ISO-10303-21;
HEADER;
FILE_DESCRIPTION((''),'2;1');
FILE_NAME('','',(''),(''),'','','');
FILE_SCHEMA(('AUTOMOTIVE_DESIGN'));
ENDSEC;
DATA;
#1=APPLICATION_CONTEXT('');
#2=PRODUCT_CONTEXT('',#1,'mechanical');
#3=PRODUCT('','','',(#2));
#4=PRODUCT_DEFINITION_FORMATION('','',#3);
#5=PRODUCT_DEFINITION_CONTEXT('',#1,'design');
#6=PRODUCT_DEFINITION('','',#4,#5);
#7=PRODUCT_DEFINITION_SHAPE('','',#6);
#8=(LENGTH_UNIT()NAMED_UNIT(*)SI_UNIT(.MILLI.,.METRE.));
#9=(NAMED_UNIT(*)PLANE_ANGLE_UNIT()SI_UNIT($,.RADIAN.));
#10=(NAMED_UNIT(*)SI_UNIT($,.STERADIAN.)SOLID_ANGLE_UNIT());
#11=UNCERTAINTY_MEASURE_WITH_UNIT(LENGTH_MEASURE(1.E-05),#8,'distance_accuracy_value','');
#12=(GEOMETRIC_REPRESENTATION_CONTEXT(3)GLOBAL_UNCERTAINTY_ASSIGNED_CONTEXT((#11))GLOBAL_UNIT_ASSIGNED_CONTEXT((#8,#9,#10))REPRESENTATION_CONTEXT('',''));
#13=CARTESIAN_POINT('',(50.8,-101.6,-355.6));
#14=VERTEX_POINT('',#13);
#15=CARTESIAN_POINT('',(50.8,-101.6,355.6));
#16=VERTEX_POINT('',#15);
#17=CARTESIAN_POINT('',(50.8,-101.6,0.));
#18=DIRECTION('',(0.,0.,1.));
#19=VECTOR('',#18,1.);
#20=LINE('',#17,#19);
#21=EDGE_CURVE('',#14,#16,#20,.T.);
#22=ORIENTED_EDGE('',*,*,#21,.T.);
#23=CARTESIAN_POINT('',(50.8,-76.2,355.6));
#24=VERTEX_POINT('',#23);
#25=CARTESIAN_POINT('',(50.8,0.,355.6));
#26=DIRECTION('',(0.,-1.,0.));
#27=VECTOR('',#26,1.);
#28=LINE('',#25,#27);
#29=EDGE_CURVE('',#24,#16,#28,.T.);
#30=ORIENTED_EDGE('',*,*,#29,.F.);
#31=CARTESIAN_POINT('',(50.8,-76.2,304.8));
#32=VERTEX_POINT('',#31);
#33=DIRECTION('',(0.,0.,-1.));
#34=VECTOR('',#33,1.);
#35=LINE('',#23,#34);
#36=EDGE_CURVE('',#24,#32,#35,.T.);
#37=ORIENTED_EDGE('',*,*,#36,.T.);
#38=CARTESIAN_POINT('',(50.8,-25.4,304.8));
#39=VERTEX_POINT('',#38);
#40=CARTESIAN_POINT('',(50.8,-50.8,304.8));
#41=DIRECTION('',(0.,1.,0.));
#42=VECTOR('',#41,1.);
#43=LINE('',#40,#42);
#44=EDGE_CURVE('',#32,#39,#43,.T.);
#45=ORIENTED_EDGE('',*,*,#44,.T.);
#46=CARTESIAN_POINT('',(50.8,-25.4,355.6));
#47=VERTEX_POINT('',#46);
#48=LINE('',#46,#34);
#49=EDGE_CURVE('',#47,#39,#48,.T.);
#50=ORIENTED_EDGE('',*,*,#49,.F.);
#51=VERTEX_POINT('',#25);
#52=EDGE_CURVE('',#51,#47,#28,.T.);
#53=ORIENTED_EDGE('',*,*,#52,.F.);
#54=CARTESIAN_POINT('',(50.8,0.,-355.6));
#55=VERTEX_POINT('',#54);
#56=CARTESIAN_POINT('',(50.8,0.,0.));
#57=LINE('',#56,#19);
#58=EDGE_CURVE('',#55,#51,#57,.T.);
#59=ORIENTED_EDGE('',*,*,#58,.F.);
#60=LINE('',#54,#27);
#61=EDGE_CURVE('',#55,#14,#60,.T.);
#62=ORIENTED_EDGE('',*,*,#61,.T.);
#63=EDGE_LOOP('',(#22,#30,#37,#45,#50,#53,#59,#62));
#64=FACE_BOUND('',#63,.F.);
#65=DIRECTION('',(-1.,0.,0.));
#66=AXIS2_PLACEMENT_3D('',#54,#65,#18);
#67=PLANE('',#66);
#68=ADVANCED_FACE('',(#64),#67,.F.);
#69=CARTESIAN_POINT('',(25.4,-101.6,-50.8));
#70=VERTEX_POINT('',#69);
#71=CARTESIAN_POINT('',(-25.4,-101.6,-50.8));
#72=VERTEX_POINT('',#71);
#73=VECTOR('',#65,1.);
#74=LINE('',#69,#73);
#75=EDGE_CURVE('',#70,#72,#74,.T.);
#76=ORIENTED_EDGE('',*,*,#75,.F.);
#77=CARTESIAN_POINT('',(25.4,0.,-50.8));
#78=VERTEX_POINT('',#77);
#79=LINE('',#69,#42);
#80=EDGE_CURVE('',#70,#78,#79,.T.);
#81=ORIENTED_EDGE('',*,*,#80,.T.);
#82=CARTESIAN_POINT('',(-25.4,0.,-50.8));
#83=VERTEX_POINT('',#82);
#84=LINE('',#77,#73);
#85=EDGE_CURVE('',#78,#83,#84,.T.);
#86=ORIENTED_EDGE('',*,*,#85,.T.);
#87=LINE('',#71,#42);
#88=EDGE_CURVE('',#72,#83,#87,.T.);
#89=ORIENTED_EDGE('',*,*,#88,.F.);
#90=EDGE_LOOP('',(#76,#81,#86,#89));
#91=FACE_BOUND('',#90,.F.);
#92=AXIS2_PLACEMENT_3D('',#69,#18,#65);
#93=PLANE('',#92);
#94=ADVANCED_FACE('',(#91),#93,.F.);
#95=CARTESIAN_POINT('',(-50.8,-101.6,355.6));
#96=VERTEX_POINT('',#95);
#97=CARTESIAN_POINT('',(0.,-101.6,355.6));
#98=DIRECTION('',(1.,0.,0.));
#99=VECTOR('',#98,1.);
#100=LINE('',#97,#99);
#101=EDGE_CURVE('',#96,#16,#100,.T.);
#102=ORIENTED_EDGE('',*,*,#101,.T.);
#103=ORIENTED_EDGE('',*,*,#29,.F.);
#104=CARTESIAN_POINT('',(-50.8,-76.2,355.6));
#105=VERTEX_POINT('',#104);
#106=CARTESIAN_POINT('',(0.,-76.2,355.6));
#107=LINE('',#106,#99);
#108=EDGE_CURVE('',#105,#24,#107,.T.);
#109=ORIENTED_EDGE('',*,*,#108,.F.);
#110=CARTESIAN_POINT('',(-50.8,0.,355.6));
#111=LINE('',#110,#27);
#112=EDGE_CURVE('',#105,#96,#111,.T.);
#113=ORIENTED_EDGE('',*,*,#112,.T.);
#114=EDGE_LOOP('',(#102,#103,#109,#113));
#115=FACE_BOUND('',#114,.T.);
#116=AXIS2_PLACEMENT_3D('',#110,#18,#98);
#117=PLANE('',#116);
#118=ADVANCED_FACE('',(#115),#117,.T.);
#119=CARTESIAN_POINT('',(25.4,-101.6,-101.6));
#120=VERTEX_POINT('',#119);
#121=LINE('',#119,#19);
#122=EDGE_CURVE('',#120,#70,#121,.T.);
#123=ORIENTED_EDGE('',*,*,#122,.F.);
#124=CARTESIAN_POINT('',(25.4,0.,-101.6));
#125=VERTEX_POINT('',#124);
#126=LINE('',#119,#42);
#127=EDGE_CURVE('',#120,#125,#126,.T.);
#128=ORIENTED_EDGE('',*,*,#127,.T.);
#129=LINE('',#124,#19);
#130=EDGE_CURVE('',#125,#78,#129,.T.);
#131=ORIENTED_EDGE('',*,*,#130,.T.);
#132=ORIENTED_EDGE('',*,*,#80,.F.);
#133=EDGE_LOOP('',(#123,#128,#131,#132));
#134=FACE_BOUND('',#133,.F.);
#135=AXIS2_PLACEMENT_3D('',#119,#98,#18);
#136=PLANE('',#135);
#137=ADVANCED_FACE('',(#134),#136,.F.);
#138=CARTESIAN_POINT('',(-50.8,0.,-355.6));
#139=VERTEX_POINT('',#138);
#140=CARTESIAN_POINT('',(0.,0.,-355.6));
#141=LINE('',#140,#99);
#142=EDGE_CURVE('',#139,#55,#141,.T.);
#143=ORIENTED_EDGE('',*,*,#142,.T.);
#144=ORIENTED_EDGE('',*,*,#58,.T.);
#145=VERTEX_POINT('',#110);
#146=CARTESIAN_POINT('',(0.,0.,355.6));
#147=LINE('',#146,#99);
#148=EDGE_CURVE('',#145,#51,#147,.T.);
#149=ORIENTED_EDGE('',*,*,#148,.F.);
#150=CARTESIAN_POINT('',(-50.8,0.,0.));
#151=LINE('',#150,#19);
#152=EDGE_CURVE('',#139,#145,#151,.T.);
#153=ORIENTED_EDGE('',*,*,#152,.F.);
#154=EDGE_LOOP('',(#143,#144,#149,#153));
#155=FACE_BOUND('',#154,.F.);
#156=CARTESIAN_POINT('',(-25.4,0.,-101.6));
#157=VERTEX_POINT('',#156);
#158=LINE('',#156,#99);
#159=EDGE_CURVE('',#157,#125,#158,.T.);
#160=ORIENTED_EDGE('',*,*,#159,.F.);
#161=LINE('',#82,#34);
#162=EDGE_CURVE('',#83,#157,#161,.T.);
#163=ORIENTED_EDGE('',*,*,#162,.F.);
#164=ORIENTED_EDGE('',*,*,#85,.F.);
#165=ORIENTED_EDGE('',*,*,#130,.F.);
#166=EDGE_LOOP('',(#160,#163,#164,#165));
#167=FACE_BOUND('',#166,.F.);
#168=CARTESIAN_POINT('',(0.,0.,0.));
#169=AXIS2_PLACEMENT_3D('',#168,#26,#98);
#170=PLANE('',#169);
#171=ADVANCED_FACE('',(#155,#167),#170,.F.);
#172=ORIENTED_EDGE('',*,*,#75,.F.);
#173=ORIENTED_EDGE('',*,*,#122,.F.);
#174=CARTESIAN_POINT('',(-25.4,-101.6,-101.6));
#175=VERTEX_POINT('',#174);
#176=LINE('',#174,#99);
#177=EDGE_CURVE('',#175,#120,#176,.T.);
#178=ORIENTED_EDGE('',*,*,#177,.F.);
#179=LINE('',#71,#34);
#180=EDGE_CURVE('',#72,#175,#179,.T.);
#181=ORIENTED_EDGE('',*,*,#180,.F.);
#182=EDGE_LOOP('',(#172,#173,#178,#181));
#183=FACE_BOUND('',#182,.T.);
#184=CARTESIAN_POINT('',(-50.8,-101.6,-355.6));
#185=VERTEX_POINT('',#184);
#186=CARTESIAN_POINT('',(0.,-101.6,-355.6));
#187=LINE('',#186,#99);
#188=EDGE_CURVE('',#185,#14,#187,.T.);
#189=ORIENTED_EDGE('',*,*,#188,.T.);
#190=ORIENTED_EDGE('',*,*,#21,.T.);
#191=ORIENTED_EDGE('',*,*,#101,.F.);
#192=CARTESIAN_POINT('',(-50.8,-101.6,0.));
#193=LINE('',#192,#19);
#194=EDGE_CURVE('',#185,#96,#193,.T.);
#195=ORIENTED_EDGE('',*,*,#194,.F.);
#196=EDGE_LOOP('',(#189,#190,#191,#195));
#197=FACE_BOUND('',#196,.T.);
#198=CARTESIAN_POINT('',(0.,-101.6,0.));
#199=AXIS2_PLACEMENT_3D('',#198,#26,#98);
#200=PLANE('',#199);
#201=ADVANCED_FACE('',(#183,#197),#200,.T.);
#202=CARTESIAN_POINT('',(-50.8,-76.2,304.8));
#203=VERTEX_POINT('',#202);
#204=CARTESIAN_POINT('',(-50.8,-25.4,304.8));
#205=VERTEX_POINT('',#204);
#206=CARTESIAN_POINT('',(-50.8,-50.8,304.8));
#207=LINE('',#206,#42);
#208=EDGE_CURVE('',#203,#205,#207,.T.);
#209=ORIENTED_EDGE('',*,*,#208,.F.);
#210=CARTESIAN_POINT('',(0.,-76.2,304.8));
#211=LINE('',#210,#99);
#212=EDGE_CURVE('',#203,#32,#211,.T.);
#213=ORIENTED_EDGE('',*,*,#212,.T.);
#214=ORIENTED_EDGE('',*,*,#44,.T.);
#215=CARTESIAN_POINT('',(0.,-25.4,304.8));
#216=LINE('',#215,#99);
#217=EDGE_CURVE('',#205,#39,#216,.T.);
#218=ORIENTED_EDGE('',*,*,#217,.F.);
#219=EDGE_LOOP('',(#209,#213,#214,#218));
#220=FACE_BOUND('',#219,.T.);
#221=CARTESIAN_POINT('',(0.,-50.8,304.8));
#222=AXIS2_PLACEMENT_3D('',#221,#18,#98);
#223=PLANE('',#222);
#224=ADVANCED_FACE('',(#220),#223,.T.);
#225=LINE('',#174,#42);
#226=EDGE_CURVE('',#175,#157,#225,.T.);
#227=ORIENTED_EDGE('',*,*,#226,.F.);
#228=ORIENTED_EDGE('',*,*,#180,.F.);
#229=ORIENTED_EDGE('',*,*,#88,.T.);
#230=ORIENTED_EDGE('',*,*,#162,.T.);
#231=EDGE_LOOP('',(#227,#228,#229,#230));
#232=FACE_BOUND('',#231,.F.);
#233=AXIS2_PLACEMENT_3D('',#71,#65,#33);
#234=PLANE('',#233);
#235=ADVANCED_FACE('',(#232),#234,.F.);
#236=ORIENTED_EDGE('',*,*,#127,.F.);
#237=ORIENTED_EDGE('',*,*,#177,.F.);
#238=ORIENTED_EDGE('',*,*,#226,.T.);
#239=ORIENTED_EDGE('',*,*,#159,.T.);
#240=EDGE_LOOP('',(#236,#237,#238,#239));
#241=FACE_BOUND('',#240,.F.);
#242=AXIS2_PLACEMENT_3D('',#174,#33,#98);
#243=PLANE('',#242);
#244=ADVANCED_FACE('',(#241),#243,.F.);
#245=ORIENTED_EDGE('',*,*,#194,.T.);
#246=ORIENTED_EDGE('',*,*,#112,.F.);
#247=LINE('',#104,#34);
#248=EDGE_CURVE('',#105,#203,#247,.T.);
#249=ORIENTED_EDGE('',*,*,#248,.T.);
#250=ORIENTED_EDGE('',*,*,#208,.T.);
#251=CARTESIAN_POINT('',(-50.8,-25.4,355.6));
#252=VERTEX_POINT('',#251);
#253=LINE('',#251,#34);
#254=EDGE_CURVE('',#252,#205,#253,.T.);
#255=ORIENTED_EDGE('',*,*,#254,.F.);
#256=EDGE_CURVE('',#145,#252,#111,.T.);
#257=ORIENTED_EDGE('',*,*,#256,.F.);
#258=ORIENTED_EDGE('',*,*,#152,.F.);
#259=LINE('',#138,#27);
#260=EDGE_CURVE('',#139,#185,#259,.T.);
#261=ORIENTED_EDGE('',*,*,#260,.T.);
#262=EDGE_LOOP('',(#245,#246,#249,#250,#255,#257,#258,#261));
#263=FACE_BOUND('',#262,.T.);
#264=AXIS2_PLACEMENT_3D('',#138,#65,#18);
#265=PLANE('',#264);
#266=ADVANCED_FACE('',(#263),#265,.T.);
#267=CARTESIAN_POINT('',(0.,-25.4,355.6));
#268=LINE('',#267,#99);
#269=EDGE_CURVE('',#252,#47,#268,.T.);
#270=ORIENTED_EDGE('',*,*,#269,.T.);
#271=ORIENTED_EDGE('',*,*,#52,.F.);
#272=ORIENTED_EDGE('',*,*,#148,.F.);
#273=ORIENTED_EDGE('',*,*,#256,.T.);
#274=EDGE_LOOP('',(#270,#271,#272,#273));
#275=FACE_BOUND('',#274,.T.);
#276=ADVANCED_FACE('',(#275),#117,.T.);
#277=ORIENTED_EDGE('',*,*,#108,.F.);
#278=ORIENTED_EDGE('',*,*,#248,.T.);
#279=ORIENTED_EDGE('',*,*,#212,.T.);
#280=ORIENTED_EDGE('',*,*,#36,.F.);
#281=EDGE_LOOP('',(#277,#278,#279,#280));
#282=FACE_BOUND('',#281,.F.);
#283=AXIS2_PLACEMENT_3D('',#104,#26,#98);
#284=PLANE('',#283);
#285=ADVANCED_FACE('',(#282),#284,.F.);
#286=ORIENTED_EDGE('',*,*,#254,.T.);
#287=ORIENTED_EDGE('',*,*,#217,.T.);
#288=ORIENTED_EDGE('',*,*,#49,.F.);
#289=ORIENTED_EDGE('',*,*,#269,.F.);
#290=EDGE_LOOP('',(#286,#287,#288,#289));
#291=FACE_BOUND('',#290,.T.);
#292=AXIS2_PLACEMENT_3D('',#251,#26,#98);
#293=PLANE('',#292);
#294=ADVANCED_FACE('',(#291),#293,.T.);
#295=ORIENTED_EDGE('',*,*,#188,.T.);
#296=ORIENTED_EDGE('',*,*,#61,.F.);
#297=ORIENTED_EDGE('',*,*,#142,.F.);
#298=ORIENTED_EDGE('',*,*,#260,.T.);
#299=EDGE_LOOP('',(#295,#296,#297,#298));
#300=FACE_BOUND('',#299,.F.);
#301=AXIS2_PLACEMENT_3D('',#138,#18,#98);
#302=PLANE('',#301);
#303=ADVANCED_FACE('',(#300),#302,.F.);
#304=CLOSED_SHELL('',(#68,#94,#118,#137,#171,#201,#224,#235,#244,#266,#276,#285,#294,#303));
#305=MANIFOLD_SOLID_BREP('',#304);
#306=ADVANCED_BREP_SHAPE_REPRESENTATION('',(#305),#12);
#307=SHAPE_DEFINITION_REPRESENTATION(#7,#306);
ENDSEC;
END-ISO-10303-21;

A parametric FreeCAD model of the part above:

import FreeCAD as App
import Part
import Sketcher
Q = App.Units.Quantity


def add_polygon(sketch, points):
    """Adds a closed chain of lines whose ends are joined by coincident constraints."""
    first, n = sketch.GeometryCount, len(points)
    for a, b in zip(points, points[1:] + points[:1]):
        sketch.addGeometry(Part.LineSegment(App.Vector(*a, 0), App.Vector(*b, 0)), False)
    for i in range(n):
        sketch.addConstraint(Sketcher.Constraint("Coincident", first + i, 2, first + (i + 1) % n, 1))

doc = App.newDocument("Part")
body = doc.addObject("PartDesign::Body", "Body")

# Sketch on XZ plane
sketch1 = body.newObject("Sketcher::SketchObject", "Sketch")
sketch1.AttachmentSupport = (doc.getObject("XZ_Plane"), [""])
sketch1.MapMode = "FlatFace"
add_polygon(sketch1, [(-51, 356), (-51, -356), (51, -356), (51, 356)])  # lines 0-3
sketch1.addConstraint([
    Sketcher.Constraint("Vertical", 0),
    Sketcher.Constraint("Horizontal", 1),
    Sketcher.Constraint("Vertical", 2),
    Sketcher.Constraint("Horizontal", 3),
    Sketcher.Constraint("Symmetric", 0, 2, 2, 2, -1, 1),
    Sketcher.Constraint("DistanceX", 1, 1, 1, 2, Q("4 in")),
    Sketcher.Constraint("DistanceY", 0, 2, 0, 1, Q("28 in")),
])
pad1 = body.newObject("PartDesign::Pad", "Pad")
pad1.Profile = sketch1
pad1.Length = Q("4 in")

# Sketch on XY plane
sketch2 = body.newObject("Sketcher::SketchObject", "Sketch001")
sketch2.AttachmentSupport = (doc.getObject("XY_Plane"), [""])
sketch2.MapMode = "FlatFace"
sketch2.AttachmentOffset = App.Placement(App.Vector(0, 0, 14 * 25.4), App.Rotation())
add_polygon(sketch2, [(-51, -25), (-51, -76), (51, -76), (51, -25)])  # lines 0-3
sketch2.addConstraint([
    Sketcher.Constraint("Vertical", 0),
    Sketcher.Constraint("Horizontal", 1),
    Sketcher.Constraint("Vertical", 2),
    Sketcher.Constraint("Horizontal", 3),
    Sketcher.Constraint("DistanceX", 1, 1, 1, 2, Q("4 in")),
    Sketcher.Constraint("DistanceY", 0, 2, 0, 1, Q("2 in")),
    Sketcher.Constraint("DistanceX", 0, 2, -1, 1, Q("2 in")),
    Sketcher.Constraint("DistanceY", 0, 2, -1, 1, Q("3 in")),
])
pocket1 = body.newObject("PartDesign::Pocket", "Pocket")
pocket1.Profile = sketch2
pocket1.Length = Q("2 in")

# Sketch on XZ plane
sketch3 = body.newObject("Sketcher::SketchObject", "Sketch002")
sketch3.AttachmentSupport = (doc.getObject("XZ_Plane"), [""])
sketch3.MapMode = "FlatFace"
sketch3.AttachmentOffset = App.Placement(App.Vector(0, 0, 4 * 25.4), App.Rotation())
add_polygon(sketch3, [(25, -102), (25, -51), (-25, -51), (-25, -102)])  # lines 0-3
sketch3.addConstraint([
    Sketcher.Constraint("Vertical", 0),
    Sketcher.Constraint("Horizontal", 1),
    Sketcher.Constraint("Vertical", 2),
    Sketcher.Constraint("Horizontal", 3),
    Sketcher.Constraint("Equal", 3, 0),
    Sketcher.Constraint("DistanceX", 1, 2, 1, 1, Q("2 in")),
    Sketcher.Constraint("DistanceX", -1, 1, 0, 2, Q("1 in")),
    Sketcher.Constraint("DistanceY", 0, 2, -1, 1, Q("2 in")),
])
pocket2 = body.newObject("PartDesign::Pocket", "Pocket001")
pocket2.Profile = sketch3
pocket2.Length = Q("4 in")

doc.recompute()
